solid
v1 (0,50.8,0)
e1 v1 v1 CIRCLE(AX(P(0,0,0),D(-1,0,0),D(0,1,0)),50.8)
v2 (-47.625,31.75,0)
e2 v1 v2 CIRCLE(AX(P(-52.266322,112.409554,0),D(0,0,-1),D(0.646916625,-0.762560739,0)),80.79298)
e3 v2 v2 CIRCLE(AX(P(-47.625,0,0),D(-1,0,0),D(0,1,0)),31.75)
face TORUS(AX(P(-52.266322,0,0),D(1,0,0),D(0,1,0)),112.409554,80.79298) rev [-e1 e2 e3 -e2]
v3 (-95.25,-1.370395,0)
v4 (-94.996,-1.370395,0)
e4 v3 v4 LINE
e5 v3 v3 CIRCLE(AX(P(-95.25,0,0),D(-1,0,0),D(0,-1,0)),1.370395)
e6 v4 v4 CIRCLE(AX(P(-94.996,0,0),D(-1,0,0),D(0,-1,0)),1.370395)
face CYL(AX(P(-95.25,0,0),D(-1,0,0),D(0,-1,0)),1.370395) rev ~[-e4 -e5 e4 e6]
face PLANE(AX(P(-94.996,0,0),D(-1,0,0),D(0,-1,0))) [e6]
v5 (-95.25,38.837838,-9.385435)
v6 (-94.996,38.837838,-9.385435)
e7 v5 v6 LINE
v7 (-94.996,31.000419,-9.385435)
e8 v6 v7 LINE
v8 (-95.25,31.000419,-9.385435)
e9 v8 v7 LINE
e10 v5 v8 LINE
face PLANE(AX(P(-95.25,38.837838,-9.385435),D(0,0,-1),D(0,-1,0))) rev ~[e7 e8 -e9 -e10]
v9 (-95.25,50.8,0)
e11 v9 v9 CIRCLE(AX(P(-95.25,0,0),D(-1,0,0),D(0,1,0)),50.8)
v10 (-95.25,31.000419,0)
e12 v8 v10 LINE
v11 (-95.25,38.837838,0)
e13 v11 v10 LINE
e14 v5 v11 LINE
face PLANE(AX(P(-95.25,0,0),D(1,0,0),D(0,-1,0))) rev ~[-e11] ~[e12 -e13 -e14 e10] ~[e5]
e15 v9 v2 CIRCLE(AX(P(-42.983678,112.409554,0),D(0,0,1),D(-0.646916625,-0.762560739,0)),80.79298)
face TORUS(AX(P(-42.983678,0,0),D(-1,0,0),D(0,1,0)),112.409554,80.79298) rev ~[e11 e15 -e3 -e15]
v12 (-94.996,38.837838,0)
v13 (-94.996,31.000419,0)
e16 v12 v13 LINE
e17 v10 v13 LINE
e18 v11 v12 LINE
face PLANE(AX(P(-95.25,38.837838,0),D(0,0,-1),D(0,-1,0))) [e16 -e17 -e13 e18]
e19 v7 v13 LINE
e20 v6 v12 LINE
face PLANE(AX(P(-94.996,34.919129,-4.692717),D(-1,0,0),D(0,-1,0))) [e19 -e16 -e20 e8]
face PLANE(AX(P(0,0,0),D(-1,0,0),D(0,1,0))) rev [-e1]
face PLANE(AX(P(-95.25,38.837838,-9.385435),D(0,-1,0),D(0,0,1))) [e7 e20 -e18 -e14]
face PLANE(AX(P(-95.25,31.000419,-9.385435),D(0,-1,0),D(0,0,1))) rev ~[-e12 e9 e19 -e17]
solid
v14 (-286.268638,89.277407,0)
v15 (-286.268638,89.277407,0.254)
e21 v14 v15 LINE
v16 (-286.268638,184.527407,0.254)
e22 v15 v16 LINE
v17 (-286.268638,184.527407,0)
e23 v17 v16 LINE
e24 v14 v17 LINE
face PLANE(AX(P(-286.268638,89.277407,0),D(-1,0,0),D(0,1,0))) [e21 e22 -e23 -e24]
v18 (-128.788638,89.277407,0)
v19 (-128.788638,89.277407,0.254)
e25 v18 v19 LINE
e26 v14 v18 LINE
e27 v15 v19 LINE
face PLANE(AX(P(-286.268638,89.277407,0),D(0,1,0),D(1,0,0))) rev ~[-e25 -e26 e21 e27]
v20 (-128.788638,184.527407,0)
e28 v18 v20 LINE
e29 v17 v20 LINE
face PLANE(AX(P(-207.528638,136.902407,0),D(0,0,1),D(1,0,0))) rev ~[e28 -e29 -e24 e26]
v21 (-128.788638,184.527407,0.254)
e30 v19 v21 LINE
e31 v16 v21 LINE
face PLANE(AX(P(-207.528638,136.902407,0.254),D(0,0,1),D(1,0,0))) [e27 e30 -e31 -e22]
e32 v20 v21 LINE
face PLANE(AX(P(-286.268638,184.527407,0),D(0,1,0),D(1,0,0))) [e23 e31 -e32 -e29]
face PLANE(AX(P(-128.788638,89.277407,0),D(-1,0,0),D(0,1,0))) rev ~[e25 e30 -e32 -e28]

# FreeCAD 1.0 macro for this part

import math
import FreeCAD as App
import Part
import Sketcher

V = App.Vector
Q = App.Units.Quantity

doc = App.newDocument("Part")
body = doc.addObject("PartDesign::Body", "Body")

# Sketch on XY plane
sketch1 = body.newObject("Sketcher::SketchObject", "Sketch")
sketch1.AttachmentSupport = (doc.getObject("XY_Plane"), [""])
sketch1.MapMode = "FlatFace"
sketch1.addGeometry(Part.LineSegment(V(-48, 0, 0), V(0, 0, 0)), False)
sketch1.addGeometry(Part.LineSegment(V(0, 0, 0), V(0, 51, 0)), False)
sketch1.addGeometry(Part.ArcOfCircle(Part.Circle(V(-52, 112, 0), V(0, 0, 1), 81), math.radians(-87), math.radians(-50)), False)
sketch1.addGeometry(Part.LineSegment(V(-48, 32, 0), V(-48, 0, 0)), False)
sketch1.addConstraint(Sketcher.Constraint("Coincident", 0, 2, 1, 1))
sketch1.addConstraint(Sketcher.Constraint("Coincident", 1, 2, 2, 2))
sketch1.addConstraint(Sketcher.Constraint("Coincident", 2, 1, 3, 1))
sketch1.addConstraint(Sketcher.Constraint("Coincident", 3, 2, 0, 1))
sketch1.addConstraint(Sketcher.Constraint("Horizontal", 0))
sketch1.addConstraint(Sketcher.Constraint("Vertical", 1))
sketch1.addConstraint(Sketcher.Constraint("Vertical", 3))
sketch1.addConstraint(Sketcher.Constraint("Coincident", 0, 2, -1, 1))
sketch1.addConstraint(Sketcher.Constraint("DistanceY", 1, 1, 1, 2, Q("2 in")))
sketch1.addConstraint(Sketcher.Constraint("DistanceY", 3, 2, 3, 1, Q("1.25 in")))
sketch1.addConstraint(Sketcher.Constraint("DistanceX", 0, 1, 0, 2, Q("1.875 in")))
sketch1.addConstraint(Sketcher.Constraint("Radius", 2, Q("80.79298 mm")))
revolution = body.newObject("PartDesign::Revolution", "Revolution")
revolution.Profile = sketch1
revolution.ReferenceAxis = (sketch1, ["H_Axis"])
revolution.Angle = 360
body2 = doc.addObject("PartDesign::Body", "Body001")
doc.recompute()

body2.BaseFeature = body
doc.recompute()

mirroring = doc.addObject("Part::Mirroring", "Mirroring")
mirroring.Source = body
mirroring.Base = V(-47.625, 0, 0)
mirroring.Normal = V(-1, 0, 0)
body3 = doc.addObject("PartDesign::Body", "Body002")
body3.BaseFeature = mirroring
boolean = body2.newObject("PartDesign::Boolean", "Boolean")
boolean.Type = "Fuse"
boolean.addObjects([body3])
doc.recompute()

# Sketch on YZ plane
sketch2 = body2.newObject("Sketcher::SketchObject", "Sketch001")
sketch2.AttachmentSupport = (doc.getObject("YZ_Plane001"), [""])
sketch2.MapMode = "FlatFace"
sketch2.AttachmentOffset = App.Placement(V(0, 0, -3.75 * 25.4), App.Rotation())
sketch2.addGeometry(Part.LineSegment(V(39, 0, 0), V(39, -9, 0)), False)
sketch2.addGeometry(Part.LineSegment(V(39, -9, 0), V(31, -9, 0)), False)
sketch2.addGeometry(Part.LineSegment(V(31, -9, 0), V(31, 0, 0)), False)
sketch2.addGeometry(Part.LineSegment(V(31, 0, 0), V(39, 0, 0)), False)
sketch2.addConstraint(Sketcher.Constraint("Coincident", 0, 2, 1, 1))
sketch2.addConstraint(Sketcher.Constraint("Coincident", 1, 2, 2, 1))
sketch2.addConstraint(Sketcher.Constraint("Coincident", 2, 2, 3, 1))
sketch2.addConstraint(Sketcher.Constraint("Coincident", 3, 2, 0, 1))
sketch2.addConstraint(Sketcher.Constraint("Vertical", 0))
sketch2.addConstraint(Sketcher.Constraint("Horizontal", 1))
sketch2.addConstraint(Sketcher.Constraint("Vertical", 2))
sketch2.addConstraint(Sketcher.Constraint("Horizontal", 3))
sketch2.addConstraint(Sketcher.Constraint("PointOnObject", 2, 2, -1))
sketch2.addConstraint(Sketcher.Constraint("DistanceX", 1, 2, 1, 1, Q("7.837419 mm")))
sketch2.addConstraint(Sketcher.Constraint("DistanceY", 0, 2, 0, 1, Q("9.385435 mm")))
sketch2.addConstraint(Sketcher.Constraint("DistanceX", -1, 1, 0, 2, Q("38.837838 mm")))
pocket1 = body2.newObject("PartDesign::Pocket", "Pocket")
pocket1.Profile = sketch2
pocket1.Length = Q("0.01 in")
pocket1.Reversed = True

# Sketch on YZ plane
sketch3 = body2.newObject("Sketcher::SketchObject", "Sketch002")
sketch3.AttachmentSupport = (doc.getObject("YZ_Plane001"), [""])
sketch3.MapMode = "FlatFace"
sketch3.AttachmentOffset = App.Placement(V(0, 0, -3.75 * 25.4), App.Rotation())
sketch3.addGeometry(Part.Circle(V(0, 0, 0), V(0, 0, 1), 1.4), False)
sketch3.addConstraint(Sketcher.Constraint("Coincident", 0, 3, -1, 1))
sketch3.addConstraint(Sketcher.Constraint("Diameter", 0, Q("2.74079 mm")))
pocket2 = body2.newObject("PartDesign::Pocket", "Pocket001")
pocket2.Profile = sketch3
pocket2.Length = Q("0.01 in")
pocket2.Reversed = True
body4 = doc.addObject("PartDesign::Body", "Body003")

# Sketch on XY plane
sketch4 = body4.newObject("Sketcher::SketchObject", "Sketch003")
sketch4.AttachmentSupport = (doc.getObject("XY_Plane003"), [""])
sketch4.MapMode = "FlatFace"
sketch4.addGeometry(Part.LineSegment(V(-286, 185, 0), V(-286, 89, 0)), False)
sketch4.addGeometry(Part.LineSegment(V(-286, 89, 0), V(-129, 89, 0)), False)
sketch4.addGeometry(Part.LineSegment(V(-129, 89, 0), V(-129, 185, 0)), False)
sketch4.addGeometry(Part.LineSegment(V(-129, 185, 0), V(-286, 185, 0)), False)
sketch4.addConstraint(Sketcher.Constraint("Coincident", 0, 2, 1, 1))
sketch4.addConstraint(Sketcher.Constraint("Coincident", 1, 2, 2, 1))
sketch4.addConstraint(Sketcher.Constraint("Coincident", 2, 2, 3, 1))
sketch4.addConstraint(Sketcher.Constraint("Coincident", 3, 2, 0, 1))
sketch4.addConstraint(Sketcher.Constraint("Vertical", 0))
sketch4.addConstraint(Sketcher.Constraint("Horizontal", 1))
sketch4.addConstraint(Sketcher.Constraint("Vertical", 2))
sketch4.addConstraint(Sketcher.Constraint("Horizontal", 3))
sketch4.addConstraint(Sketcher.Constraint("DistanceX", 1, 1, 1, 2, Q("6.2 in")))
sketch4.addConstraint(Sketcher.Constraint("DistanceY", 0, 2, 0, 1, Q("3.75 in")))
sketch4.addConstraint(Sketcher.Constraint("DistanceX", 0, 2, -1, 1, Q("286.268638 mm")))
sketch4.addConstraint(Sketcher.Constraint("DistanceY", -1, 1, 0, 2, Q("89.277407 mm")))
pad1 = body4.newObject("PartDesign::Pad", "Pad")
pad1.Profile = sketch4
pad1.Length = Q("0.01 in")
mirroring.Visibility = False

doc.recompute()
